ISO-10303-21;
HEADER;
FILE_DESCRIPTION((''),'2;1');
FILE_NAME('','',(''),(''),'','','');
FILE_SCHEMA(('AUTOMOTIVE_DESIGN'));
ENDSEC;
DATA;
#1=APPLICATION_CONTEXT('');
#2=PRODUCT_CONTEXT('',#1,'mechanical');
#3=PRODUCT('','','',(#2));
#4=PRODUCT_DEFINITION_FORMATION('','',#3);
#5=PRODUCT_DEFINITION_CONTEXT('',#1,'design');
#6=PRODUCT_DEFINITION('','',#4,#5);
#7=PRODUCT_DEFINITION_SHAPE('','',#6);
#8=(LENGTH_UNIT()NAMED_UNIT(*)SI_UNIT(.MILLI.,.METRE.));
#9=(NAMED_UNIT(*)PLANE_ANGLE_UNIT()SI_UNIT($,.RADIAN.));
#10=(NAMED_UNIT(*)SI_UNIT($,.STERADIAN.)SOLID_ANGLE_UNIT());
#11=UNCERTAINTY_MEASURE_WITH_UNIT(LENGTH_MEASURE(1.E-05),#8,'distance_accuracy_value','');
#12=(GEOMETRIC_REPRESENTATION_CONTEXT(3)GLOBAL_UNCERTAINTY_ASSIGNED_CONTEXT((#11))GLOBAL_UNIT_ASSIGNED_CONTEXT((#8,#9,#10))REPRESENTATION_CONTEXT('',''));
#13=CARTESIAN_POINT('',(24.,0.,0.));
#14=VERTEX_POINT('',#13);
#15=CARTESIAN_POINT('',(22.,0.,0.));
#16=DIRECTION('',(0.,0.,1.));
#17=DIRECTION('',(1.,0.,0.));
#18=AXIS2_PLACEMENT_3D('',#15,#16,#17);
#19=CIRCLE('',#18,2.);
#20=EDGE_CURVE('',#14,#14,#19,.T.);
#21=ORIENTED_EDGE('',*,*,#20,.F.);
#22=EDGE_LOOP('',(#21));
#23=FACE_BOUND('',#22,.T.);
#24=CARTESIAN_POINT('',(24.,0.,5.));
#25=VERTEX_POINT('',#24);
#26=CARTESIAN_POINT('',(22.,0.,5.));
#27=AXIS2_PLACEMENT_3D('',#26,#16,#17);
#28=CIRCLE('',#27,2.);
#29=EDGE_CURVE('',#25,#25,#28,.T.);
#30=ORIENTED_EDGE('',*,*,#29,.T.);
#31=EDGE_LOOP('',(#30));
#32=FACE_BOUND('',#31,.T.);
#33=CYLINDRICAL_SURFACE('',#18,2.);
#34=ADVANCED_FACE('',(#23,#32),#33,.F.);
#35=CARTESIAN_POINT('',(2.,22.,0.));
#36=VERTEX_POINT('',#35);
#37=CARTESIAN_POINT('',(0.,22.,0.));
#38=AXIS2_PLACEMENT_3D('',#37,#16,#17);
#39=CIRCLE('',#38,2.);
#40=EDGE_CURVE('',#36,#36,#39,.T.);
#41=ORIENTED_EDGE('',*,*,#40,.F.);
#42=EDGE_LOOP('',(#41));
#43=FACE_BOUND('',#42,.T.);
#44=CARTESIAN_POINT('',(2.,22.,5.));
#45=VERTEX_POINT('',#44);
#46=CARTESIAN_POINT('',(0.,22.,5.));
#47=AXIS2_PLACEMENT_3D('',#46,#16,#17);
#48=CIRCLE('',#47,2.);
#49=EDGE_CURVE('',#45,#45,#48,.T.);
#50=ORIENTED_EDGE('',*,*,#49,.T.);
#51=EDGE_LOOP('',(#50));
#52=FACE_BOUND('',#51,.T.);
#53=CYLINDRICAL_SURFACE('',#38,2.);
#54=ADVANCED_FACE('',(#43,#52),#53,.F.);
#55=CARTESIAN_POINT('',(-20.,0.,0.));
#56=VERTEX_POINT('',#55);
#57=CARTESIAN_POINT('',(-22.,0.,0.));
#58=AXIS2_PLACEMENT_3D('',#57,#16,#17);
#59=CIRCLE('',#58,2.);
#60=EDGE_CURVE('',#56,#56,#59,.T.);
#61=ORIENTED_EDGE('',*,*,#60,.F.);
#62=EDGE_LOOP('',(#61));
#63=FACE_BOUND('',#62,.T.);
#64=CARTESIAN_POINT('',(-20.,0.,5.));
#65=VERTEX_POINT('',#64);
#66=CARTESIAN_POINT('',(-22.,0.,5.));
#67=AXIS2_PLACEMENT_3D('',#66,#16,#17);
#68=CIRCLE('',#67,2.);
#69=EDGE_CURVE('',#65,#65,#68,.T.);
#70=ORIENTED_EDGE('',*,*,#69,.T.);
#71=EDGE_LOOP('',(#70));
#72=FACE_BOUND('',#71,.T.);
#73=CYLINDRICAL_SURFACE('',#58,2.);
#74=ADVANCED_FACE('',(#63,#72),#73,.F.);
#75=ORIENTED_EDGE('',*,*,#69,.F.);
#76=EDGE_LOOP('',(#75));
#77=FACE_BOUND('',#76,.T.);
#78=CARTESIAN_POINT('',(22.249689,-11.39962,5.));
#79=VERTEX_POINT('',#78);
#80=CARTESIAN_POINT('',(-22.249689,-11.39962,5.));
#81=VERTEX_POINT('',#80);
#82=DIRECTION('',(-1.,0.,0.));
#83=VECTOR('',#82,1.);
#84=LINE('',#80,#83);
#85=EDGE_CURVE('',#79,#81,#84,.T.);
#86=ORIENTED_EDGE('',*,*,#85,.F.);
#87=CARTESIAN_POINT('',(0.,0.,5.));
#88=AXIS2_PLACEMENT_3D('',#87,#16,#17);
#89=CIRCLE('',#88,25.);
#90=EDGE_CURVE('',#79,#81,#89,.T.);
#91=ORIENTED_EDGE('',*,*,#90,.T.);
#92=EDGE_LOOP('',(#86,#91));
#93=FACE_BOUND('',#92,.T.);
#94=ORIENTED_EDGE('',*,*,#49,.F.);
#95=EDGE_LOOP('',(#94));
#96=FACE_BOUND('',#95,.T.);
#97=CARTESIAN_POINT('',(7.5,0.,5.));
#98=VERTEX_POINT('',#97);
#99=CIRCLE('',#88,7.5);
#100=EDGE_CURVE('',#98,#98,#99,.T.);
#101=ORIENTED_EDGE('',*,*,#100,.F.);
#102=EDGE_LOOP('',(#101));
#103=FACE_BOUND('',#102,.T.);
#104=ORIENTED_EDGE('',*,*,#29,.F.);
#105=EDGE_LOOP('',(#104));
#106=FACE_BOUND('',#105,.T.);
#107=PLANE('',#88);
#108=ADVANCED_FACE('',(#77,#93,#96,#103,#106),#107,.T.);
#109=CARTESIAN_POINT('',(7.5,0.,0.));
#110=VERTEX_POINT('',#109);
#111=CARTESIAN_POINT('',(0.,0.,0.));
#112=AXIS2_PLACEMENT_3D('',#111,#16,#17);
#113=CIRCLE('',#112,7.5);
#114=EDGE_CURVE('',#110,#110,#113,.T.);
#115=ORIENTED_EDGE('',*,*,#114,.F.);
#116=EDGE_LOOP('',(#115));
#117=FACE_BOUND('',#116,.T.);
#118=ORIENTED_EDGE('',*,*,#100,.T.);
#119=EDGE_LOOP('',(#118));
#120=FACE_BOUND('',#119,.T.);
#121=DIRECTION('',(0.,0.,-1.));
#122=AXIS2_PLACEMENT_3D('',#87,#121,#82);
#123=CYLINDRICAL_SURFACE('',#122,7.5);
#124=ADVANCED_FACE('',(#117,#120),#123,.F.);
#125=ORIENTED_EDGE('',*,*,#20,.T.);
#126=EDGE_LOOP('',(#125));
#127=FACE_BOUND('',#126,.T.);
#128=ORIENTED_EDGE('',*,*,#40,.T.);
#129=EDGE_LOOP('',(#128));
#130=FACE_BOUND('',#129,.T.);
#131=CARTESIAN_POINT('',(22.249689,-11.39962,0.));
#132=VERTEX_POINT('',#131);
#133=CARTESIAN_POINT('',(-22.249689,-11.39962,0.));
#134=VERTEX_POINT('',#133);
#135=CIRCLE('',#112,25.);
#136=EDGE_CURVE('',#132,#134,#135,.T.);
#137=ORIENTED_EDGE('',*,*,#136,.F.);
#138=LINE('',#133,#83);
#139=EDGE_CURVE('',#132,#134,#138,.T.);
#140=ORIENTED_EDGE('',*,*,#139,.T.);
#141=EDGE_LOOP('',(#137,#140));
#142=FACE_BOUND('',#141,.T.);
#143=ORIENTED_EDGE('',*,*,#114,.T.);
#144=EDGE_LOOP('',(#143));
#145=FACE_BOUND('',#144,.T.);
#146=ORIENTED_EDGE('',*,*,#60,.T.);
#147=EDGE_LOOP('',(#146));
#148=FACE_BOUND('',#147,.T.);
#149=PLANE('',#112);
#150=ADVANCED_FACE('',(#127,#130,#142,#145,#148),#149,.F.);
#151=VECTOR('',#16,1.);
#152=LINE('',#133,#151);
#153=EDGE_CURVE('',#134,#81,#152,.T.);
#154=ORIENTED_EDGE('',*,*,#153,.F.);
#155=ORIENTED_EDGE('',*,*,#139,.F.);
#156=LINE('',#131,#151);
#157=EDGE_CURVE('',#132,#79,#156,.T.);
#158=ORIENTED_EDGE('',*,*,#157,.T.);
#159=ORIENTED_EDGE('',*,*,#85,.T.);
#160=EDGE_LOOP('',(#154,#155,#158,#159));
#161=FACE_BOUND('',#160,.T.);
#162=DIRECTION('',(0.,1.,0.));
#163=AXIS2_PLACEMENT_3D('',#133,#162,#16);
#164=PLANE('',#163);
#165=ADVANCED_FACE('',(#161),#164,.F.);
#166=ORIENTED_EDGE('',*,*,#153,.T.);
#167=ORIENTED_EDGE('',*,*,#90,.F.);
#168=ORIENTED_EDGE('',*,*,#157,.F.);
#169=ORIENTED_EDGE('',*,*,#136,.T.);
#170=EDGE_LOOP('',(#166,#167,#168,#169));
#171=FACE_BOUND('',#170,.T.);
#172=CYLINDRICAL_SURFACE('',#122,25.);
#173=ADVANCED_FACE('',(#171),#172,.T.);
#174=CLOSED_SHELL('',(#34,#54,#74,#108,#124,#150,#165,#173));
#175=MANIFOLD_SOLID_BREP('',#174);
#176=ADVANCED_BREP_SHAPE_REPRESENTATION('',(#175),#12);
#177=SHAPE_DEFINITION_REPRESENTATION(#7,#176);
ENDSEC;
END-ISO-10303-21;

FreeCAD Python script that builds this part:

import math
import FreeCAD as App
import Part
import Sketcher
from FreeCAD import Vector
Q = App.Units.Quantity

doc = App.newDocument("Part")
body = doc.addObject("PartDesign::Body", "Body")

# Sketch on XY plane
sketch1 = body.newObject("Sketcher::SketchObject", "Sketch")
sketch1.AttachmentSupport = (doc.getObject("XY_Plane"), [""])
sketch1.MapMode = "FlatFace"
sketch1.addGeometry([
    Part.Circle(Vector(0, 0, 0), Vector(0, 0, 1), 25),
    Part.Circle(Vector(0, 0, 0), Vector(0, 0, 1), 7.5),
], False)
sketch1.addConstraint([
    Sketcher.Constraint("Coincident", 0, 3, -1, 1),
    Sketcher.Constraint("Coincident", 1, 3, -1, 1),
    Sketcher.Constraint("Diameter", 0, Q("50 mm")),
    Sketcher.Constraint("Diameter", 1, Q("15 mm")),
])
pad1 = body.newObject("PartDesign::Pad", "Pad")
pad1.Profile = sketch1
pad1.Length = 5

# Sketch on XY plane
sketch2 = body.newObject("Sketcher::SketchObject", "Sketch001")
sketch2.AttachmentSupport = (doc.getObject("XY_Plane"), [""])
sketch2.MapMode = "FlatFace"
sketch2.AttachmentOffset = App.Placement(Vector(0, 0, 5), App.Rotation())
sketch2.addGeometry([
    Part.Circle(Vector(0, 22, 0), Vector(0, 0, 1), 2),  # 0
    Part.Circle(Vector(22, 0, 0), Vector(0, 0, 1), 2),  # 1
    Part.Circle(Vector(-22, 0, 0), Vector(0, 0, 1), 2),  # 2
    Part.LineSegment(Vector(22.249689, -11.39962, 0), Vector(-22.249689, -11.39962, 0)),  # 3
    Part.ArcOfCircle(Part.Circle(Vector(0, 0, 0), Vector(0, 0, 1), 25), math.radians(-152.871684), math.radians(-27.128316)),  # 4
], False)
sketch2.addConstraint([
    Sketcher.Constraint("Coincident", 3, 1, 4, 2),
    Sketcher.Constraint("Coincident", 4, 1, 3, 2),
    Sketcher.Constraint("Horizontal", 3),
    Sketcher.Constraint("Coincident", 4, 3, -1, 1),
    Sketcher.Constraint("Equal", 0, 1),
    Sketcher.Constraint("Equal", 1, 2),
    Sketcher.Constraint("Symmetric", 1, 3, 2, 3, -1, 1),
    Sketcher.Constraint("PointOnObject", 0, 3, -2),
    Sketcher.Constraint("PointOnObject", 1, 3, -1),
    Sketcher.Constraint("Diameter", 0, Q("4 mm")),
    Sketcher.Constraint("Radius", 4, Q("25 mm")),
    Sketcher.Constraint("DistanceY", -1, 1, 0, 3, Q("22 mm")),
    Sketcher.Constraint("DistanceX", -1, 1, 1, 3, Q("22 mm")),
    Sketcher.Constraint("DistanceX", 3, 2, 3, 1, Q("44.499378 mm")),
])
pocket1 = body.newObject("PartDesign::Pocket", "Pocket")
pocket1.Profile = sketch2
pocket1.Length = 5

doc.recompute()
